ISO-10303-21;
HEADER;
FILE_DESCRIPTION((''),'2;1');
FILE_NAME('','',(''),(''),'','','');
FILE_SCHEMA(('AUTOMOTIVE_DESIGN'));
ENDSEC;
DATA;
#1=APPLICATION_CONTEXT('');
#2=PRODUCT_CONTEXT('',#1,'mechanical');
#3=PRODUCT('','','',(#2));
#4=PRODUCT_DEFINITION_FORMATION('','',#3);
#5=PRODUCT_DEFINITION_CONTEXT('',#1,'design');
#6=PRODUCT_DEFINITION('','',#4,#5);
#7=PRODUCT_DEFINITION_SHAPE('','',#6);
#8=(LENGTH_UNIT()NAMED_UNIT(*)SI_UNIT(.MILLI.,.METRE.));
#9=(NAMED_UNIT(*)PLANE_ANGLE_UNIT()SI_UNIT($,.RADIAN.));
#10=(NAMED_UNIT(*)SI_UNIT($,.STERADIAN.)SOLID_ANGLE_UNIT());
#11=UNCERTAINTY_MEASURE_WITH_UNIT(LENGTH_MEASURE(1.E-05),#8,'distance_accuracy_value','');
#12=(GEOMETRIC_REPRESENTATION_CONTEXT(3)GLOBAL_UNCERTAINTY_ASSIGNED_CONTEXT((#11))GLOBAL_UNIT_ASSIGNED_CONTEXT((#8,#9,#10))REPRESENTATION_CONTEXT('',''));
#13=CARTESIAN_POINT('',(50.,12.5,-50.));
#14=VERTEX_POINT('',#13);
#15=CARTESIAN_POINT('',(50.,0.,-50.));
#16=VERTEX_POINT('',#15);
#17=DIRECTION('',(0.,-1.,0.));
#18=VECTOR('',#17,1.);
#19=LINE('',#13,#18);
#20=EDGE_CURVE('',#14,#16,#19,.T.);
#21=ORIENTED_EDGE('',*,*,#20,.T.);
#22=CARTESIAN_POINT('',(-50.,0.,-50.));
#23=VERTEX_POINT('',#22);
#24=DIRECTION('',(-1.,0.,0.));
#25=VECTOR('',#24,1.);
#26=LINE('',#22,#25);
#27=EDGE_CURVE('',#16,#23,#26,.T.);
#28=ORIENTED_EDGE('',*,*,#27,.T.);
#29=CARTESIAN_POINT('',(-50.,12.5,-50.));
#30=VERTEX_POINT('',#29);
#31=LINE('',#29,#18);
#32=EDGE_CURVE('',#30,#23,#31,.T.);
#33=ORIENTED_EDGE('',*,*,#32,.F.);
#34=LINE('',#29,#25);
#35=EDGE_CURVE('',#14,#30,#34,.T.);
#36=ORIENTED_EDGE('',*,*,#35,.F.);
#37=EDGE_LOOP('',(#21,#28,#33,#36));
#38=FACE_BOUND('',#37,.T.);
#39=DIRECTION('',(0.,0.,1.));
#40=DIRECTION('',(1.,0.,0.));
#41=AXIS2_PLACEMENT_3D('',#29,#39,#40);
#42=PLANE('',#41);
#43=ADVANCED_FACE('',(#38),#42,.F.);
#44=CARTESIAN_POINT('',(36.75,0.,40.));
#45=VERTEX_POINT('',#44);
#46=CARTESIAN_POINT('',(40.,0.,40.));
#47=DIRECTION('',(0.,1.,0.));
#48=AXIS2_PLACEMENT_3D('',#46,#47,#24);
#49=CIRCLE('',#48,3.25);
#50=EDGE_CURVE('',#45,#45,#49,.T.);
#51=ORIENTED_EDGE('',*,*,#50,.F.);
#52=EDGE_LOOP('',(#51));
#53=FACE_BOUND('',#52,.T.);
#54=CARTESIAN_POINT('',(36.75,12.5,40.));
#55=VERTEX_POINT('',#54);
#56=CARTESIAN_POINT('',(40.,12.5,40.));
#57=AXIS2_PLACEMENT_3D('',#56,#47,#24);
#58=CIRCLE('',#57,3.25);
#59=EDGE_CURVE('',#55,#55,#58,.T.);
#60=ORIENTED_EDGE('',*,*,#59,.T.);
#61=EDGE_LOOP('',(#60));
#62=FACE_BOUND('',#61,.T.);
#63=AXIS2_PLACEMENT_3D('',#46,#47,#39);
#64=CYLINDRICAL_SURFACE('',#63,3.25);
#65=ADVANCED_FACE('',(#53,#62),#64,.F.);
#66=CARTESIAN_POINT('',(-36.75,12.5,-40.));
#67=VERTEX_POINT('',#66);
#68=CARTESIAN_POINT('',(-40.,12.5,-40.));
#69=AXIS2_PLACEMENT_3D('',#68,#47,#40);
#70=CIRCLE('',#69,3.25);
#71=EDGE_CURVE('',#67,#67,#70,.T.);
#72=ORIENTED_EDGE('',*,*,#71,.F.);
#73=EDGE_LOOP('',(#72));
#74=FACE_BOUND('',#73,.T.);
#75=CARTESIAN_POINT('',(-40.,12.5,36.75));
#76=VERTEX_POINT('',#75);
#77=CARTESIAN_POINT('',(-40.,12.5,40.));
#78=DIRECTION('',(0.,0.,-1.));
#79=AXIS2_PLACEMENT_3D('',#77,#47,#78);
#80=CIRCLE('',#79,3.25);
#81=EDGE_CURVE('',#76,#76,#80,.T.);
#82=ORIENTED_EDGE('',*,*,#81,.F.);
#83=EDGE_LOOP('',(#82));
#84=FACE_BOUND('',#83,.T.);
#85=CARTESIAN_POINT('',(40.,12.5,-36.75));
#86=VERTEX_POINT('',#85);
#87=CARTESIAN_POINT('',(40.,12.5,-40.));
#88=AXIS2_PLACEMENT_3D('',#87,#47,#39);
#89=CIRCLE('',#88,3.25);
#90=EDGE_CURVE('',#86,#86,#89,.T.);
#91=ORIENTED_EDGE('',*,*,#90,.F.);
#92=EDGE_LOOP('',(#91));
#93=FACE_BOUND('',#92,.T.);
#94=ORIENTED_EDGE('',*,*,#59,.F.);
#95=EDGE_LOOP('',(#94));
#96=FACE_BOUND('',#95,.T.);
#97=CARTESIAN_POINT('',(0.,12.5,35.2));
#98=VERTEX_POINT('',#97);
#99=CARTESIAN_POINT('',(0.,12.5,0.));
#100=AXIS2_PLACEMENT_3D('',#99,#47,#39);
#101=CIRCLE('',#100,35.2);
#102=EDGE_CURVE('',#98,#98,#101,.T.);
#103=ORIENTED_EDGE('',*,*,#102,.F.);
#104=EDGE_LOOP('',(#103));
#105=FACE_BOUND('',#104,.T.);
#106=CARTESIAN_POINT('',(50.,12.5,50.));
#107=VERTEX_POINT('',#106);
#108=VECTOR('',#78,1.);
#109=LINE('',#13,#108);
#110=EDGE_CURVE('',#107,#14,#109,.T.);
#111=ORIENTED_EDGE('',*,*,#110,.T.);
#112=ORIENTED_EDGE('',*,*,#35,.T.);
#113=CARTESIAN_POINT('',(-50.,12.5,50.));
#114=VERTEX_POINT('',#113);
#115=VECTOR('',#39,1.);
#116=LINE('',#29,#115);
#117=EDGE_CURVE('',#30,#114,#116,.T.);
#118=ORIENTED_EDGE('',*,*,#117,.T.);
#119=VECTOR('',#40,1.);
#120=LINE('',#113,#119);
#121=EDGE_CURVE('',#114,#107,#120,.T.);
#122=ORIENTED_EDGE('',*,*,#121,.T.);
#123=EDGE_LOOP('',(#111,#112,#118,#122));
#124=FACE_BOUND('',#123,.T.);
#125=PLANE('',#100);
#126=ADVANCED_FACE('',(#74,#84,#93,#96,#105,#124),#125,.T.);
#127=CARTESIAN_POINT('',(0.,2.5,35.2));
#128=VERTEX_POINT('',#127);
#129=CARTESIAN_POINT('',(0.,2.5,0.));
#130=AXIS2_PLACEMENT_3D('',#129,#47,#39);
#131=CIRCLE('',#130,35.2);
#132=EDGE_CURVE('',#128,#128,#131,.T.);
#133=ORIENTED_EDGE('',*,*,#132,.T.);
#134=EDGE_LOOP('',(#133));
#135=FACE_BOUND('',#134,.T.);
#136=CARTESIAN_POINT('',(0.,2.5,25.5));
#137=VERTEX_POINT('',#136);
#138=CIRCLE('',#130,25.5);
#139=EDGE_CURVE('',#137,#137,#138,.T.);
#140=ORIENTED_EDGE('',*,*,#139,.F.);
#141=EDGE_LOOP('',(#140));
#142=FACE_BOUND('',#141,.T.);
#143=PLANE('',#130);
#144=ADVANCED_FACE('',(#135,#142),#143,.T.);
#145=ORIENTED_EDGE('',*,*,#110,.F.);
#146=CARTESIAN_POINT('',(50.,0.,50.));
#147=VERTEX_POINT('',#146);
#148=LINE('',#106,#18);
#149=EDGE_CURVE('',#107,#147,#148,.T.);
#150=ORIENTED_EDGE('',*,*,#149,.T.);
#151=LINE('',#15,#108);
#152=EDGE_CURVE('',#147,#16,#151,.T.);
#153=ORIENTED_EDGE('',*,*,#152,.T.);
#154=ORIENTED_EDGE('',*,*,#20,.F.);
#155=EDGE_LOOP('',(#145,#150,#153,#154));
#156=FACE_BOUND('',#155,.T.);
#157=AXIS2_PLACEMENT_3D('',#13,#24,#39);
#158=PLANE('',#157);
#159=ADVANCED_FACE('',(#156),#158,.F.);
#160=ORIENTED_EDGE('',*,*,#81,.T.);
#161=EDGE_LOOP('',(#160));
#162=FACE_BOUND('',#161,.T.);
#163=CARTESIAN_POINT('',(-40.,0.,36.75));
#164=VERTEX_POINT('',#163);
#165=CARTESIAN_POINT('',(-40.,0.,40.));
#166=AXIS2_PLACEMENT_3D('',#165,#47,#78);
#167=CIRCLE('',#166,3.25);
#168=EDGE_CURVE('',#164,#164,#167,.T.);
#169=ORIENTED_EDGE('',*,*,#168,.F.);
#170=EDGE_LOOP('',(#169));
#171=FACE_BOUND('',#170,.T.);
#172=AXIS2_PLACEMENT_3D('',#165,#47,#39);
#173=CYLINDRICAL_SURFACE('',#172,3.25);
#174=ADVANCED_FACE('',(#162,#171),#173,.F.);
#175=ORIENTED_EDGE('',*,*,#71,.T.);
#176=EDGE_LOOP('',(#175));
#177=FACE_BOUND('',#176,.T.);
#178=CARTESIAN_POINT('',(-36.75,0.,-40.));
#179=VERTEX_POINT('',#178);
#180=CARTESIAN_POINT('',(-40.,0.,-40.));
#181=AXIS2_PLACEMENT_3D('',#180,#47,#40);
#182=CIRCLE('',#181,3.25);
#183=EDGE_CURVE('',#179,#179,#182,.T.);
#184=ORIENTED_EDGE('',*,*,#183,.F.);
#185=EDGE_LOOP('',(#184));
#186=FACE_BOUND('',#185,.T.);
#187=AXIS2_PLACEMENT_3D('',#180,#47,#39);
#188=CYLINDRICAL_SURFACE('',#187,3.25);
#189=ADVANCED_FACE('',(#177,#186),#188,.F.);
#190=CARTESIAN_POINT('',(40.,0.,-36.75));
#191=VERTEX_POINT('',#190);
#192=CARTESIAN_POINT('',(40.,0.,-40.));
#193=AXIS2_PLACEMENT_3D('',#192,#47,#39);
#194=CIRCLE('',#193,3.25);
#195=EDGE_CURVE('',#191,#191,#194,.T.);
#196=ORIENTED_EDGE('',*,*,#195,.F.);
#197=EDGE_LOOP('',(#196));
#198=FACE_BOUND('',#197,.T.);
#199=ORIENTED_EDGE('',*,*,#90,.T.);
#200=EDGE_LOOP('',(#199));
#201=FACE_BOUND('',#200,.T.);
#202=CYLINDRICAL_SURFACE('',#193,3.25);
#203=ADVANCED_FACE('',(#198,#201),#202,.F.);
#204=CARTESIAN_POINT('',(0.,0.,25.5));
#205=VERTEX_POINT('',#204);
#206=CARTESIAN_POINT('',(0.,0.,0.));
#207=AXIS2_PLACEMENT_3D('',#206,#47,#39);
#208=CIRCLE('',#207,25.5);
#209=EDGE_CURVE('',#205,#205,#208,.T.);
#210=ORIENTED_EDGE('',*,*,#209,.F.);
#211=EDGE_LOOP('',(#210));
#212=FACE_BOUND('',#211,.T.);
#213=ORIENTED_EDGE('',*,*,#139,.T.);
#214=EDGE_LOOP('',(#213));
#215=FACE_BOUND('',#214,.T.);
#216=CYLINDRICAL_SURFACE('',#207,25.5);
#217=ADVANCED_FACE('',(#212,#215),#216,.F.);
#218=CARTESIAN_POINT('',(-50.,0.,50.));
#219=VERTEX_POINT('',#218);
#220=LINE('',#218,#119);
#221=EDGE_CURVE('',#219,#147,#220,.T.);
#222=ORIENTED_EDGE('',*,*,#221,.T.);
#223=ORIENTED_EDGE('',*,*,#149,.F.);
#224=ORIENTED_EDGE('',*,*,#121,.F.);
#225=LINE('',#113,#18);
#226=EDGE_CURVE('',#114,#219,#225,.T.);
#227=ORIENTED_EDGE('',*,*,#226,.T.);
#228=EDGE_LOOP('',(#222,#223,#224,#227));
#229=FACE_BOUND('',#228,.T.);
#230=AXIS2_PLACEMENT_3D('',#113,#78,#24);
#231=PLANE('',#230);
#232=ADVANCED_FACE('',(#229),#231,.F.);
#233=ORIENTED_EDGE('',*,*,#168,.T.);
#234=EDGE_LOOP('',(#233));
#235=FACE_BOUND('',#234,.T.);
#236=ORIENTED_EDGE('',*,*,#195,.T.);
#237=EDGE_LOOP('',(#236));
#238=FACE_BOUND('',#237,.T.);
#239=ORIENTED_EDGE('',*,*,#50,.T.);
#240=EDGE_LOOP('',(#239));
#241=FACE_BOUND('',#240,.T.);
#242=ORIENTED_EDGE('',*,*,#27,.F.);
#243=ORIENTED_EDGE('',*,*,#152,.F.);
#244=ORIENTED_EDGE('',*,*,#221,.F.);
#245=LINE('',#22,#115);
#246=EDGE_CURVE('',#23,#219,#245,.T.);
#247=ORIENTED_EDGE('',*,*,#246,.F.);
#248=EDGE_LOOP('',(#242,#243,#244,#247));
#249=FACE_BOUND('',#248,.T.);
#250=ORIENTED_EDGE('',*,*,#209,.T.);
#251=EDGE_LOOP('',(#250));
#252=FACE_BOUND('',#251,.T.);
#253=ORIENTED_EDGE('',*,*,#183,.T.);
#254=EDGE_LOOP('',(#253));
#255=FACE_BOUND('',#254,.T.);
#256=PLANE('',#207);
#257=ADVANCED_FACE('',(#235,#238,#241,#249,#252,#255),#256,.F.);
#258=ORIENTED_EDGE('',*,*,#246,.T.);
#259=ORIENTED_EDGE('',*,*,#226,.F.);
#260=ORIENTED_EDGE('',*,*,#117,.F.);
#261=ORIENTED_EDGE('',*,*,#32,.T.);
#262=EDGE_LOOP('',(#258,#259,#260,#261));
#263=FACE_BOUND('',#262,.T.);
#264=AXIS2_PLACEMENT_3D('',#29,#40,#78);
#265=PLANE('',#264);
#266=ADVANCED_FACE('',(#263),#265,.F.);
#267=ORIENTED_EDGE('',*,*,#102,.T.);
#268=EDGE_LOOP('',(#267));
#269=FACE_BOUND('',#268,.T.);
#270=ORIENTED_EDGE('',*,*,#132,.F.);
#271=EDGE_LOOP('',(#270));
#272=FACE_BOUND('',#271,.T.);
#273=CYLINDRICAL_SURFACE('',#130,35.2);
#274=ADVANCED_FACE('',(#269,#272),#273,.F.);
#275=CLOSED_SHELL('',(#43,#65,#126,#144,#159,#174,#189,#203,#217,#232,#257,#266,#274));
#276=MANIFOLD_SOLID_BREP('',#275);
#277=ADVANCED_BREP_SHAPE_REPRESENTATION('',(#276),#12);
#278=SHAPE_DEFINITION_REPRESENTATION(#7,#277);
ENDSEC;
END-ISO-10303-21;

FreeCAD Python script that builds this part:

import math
import FreeCAD as App
import Part
import Sketcher

V = App.Vector
Q = App.Units.Quantity

doc = App.newDocument("Part")
body = doc.addObject("PartDesign::Body", "Body")

sketch1 = doc.addObject("Sketcher::SketchObject", "Sketch")
body.addObject(sketch1)
sketch1.AttachmentSupport = (doc.XZ_Plane, [""])
sketch1.MapMode = "FlatFace"
sketch1.addGeometry([
    Part.LineSegment(V(-50, -50, 0), V(-50, 50, 0)),
    Part.LineSegment(V(-50, 50, 0), V(50, 50, 0)),
    Part.LineSegment(V(50, 50, 0), V(50, -50, 0)),
    Part.LineSegment(V(50, -50, 0), V(-50, -50, 0)),
], False)
sketch1.addConstraint([
    Sketcher.Constraint("Coincident", 0, 2, 1, 1),
    Sketcher.Constraint("Coincident", 1, 2, 2, 1),
    Sketcher.Constraint("Coincident", 2, 2, 3, 1),
    Sketcher.Constraint("Coincident", 3, 2, 0, 1),
    Sketcher.Constraint("Vertical", 0),
    Sketcher.Constraint("Horizontal", 1),
    Sketcher.Constraint("Vertical", 2),
    Sketcher.Constraint("Horizontal", 3),
    Sketcher.Constraint("Symmetric", 0, 2, 2, 2, -1, 1),
    Sketcher.Constraint("Equal", 3, 0),
    Sketcher.Constraint("DistanceX", 1, 1, 1, 2, Q("100 mm")),
])
pad1 = doc.addObject("PartDesign::Pad", "Pad")
body.addObject(pad1)
pad1.Profile = sketch1
pad1.Length = 12.5
pad1.Reversed = True

sketch2 = doc.addObject("Sketcher::SketchObject", "Sketch001")
body.addObject(sketch2)
sketch2.AttachmentSupport = (doc.XZ_Plane, [""])
sketch2.MapMode = "FlatFace"
sketch2.AttachmentOffset = App.Placement(V(0, 0, -12.5), App.Rotation())
sketch2.addGeometry(Part.Circle(V(0, 0, 0), V(0, 0, 1), 35.2), False)
sketch2.addConstraint([
    Sketcher.Constraint("Coincident", 0, 3, -1, 1),
    Sketcher.Constraint("Diameter", 0, Q("70.4 mm")),
])
pocket1 = doc.addObject("PartDesign::Pocket", "Pocket")
body.addObject(pocket1)
pocket1.Profile = sketch2
pocket1.Length = 10
pocket1.Reversed = True

sketch3 = doc.addObject("Sketcher::SketchObject", "Sketch002")
body.addObject(sketch3)
sketch3.AttachmentSupport = (doc.XZ_Plane, [""])
sketch3.MapMode = "FlatFace"
sketch3.AttachmentOffset = App.Placement(V(0, 0, -2.5), App.Rotation())
sketch3.addGeometry(Part.Circle(V(0, 0, 0), V(0, 0, 1), 25.5), False)
sketch3.addConstraint([
    Sketcher.Constraint("Coincident", 0, 3, -1, 1),
    Sketcher.Constraint("Diameter", 0, Q("51 mm")),
])
pocket2 = doc.addObject("PartDesign::Pocket", "Pocket001")
body.addObject(pocket2)
pocket2.Profile = sketch3
pocket2.Type = "ThroughAll"
pocket2.Reversed = True

sketch4 = doc.addObject("Sketcher::SketchObject", "Sketch003")
body.addObject(sketch4)
sketch4.AttachmentSupport = (doc.XZ_Plane, [""])
sketch4.MapMode = "FlatFace"
sketch4.AttachmentOffset = App.Placement(V(0, 0, -12.5), App.Rotation())
sketch4.addGeometry([
    Part.ArcOfCircle(Part.Circle(V(40, -40, 0), V(0, 0, 1), 3.25), math.radians(90), math.radians(180)),
    Part.ArcOfCircle(Part.Circle(V(40, -40, 0), V(0, 0, 1), 3.25), math.radians(0), math.radians(90)),
    Part.ArcOfCircle(Part.Circle(V(40, -40, 0), V(0, 0, 1), 3.25), math.radians(180), math.radians(360)),
], False)
sketch4.addConstraint([
    Sketcher.Constraint("Tangent", 0, 1, 1, 2),
    Sketcher.Constraint("Tangent", 1, 1, 2, 2),
    Sketcher.Constraint("Tangent", 2, 1, 0, 2),
    Sketcher.Constraint("Horizontal", 2, 3, 1, 1),
    Sketcher.Constraint("Horizontal", 1, 1, 2, 1),
    Sketcher.Constraint("Vertical", 2, 3, 0, 1),
    Sketcher.Constraint("Radius", 0, Q("3.25 mm")),
    Sketcher.Constraint("DistanceX", -1, 1, 0, 3, Q("40 mm")),
    Sketcher.Constraint("DistanceY", 0, 3, -1, 1, Q("40 mm")),
])
pocket3 = doc.addObject("PartDesign::Pocket", "Pocket002")
body.addObject(pocket3)
pocket3.Profile = sketch4
pocket3.Type = "ThroughAll"
pocket3.Reversed = True
doc.recompute()

polarpattern = doc.addObject("PartDesign::PolarPattern", "PolarPattern")
body.addObject(polarpattern)
polarpattern.Originals = [pocket3]
polarpattern.Axis = (doc.Y_Axis, [""])
polarpattern.Angle = 360
polarpattern.Occurrences = 4
body.Tip = polarpattern

doc.recompute()
